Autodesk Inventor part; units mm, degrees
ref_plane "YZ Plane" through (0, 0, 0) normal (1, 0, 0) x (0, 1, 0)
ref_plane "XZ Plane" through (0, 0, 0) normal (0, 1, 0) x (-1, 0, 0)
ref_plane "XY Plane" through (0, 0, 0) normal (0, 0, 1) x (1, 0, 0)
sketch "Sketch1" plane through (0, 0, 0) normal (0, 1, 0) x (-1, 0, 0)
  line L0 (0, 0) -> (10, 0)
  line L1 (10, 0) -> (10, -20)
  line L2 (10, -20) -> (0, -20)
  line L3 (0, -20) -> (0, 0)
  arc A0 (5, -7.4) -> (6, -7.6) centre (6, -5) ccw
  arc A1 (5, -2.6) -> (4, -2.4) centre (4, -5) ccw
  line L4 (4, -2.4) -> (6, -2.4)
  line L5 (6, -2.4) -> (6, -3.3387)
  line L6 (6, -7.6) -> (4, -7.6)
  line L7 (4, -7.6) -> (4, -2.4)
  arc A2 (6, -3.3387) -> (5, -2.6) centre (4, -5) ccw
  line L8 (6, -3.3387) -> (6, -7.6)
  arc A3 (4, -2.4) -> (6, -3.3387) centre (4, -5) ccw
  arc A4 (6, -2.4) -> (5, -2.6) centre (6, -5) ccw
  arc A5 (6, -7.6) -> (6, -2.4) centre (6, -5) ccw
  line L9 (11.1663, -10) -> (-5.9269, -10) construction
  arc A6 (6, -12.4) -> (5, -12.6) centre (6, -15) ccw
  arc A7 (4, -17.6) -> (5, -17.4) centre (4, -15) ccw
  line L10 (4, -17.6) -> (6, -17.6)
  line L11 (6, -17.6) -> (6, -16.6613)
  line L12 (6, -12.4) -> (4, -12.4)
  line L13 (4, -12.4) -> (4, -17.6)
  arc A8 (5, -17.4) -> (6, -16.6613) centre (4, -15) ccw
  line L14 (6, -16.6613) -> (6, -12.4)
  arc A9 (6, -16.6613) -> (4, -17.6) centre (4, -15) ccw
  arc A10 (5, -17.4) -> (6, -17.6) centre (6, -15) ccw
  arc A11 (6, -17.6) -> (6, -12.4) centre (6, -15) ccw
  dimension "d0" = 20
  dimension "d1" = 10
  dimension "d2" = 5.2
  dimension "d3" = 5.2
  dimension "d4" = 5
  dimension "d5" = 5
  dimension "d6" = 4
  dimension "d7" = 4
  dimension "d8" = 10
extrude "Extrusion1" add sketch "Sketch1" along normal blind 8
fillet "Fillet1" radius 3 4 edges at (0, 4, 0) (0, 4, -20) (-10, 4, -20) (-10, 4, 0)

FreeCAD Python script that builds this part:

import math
import FreeCAD as App
import Part
import Sketcher

V = App.Vector


def edges_at(feature, points):
    """Names of the edges that pass closest to the given points."""
    edges = feature.Shape.Edges
    near = lambda p: min(range(len(edges)), key=lambda i: edges[i].distToShape(Part.Vertex(*p))[0])
    return sorted({f"Edge{near(p) + 1}" for p in points})

doc = App.newDocument("Part")
body = doc.addObject("PartDesign::Body", "Body")

# Sketch on XZ plane
sketch1 = body.newObject("Sketcher::SketchObject", "Sketch")
sketch1.AttachmentSupport = (doc.getObject("XZ_Plane"), [""])
sketch1.MapMode = "FlatFace"
sketch1.addGeometry([
    Part.LineSegment(V(-10, 0, 0), V(0, 0, 0)),  # 0
    Part.LineSegment(V(0, 0, 0), V(0, -20, 0)),  # 1
    Part.LineSegment(V(0, -20, 0), V(-10, -20, 0)),  # 2
    Part.LineSegment(V(-10, -20, 0), V(-10, 0, 0)),  # 3
    Part.LineSegment(V(-4, -12.4, 0), V(-6, -12.4, 0)),  # 4
    Part.ArcOfCircle(Part.Circle(V(-6, -15, 0), V(0, 0, 1), 2.6), math.radians(90), math.radians(270)),  # 5
    Part.LineSegment(V(-6, -17.6, 0), V(-4, -17.6, 0)),  # 6
    Part.ArcOfCircle(Part.Circle(V(-4, -15, 0), V(0, 0, 1), 2.6), math.radians(-90), math.radians(90)),  # 7
    Part.ArcOfCircle(Part.Circle(V(-6, -5, 0), V(0, 0, 1), 2.6), math.radians(90), math.radians(270)),  # 8
    Part.LineSegment(V(-6, -7.6, 0), V(-4, -7.6, 0)),  # 9
    Part.ArcOfCircle(Part.Circle(V(-4, -5, 0), V(0, 0, 1), 2.6), math.radians(-90), math.radians(90)),  # 10
    Part.LineSegment(V(-4, -2.4, 0), V(-6, -2.4, 0)),  # 11
], False)
sketch1.addConstraint([
    Sketcher.Constraint("Coincident", 0, 2, 1, 1),
    Sketcher.Constraint("Coincident", 1, 2, 2, 1),
    Sketcher.Constraint("Coincident", 2, 2, 3, 1),
    Sketcher.Constraint("Coincident", 3, 2, 0, 1),
    Sketcher.Constraint("Tangent", 4, 2, 5, 1),
    Sketcher.Constraint("Tangent", 5, 2, 6, 1),
    Sketcher.Constraint("Tangent", 6, 2, 7, 1),
    Sketcher.Constraint("Tangent", 7, 2, 4, 1),
    Sketcher.Constraint("Tangent", 8, 2, 9, 1),
    Sketcher.Constraint("Tangent", 9, 2, 10, 1),
    Sketcher.Constraint("Tangent", 10, 2, 11, 1),
    Sketcher.Constraint("Tangent", 11, 2, 8, 1),
    Sketcher.Constraint("Horizontal", 0),
    Sketcher.Constraint("Vertical", 1),
    Sketcher.Constraint("Horizontal", 2),
    Sketcher.Constraint("Vertical", 3),
    Sketcher.Constraint("Horizontal", 4),
    Sketcher.Constraint("Horizontal", 6),
    Sketcher.Constraint("Horizontal", 9),
    Sketcher.Constraint("Horizontal", 11),
    Sketcher.Constraint("Coincident", 0, 2, -1, 1),
    Sketcher.Constraint("Equal", 7, 8),
    Sketcher.Constraint("Vertical", 5, 3, 8, 3),
    Sketcher.Constraint("Vertical", 7, 3, 10, 3),
    Sketcher.Constraint("Radius", 5, 2.6),
    Sketcher.Constraint("DistanceX", 0, 1, 0, 2, 10.0),
    Sketcher.Constraint("DistanceY", 1, 2, 1, 1, 20.0),
    Sketcher.Constraint("DistanceX", 7, 3, -1, 1, 4.0),
    Sketcher.Constraint("DistanceY", 8, 3, -1, 1, 5.0),
    Sketcher.Constraint("DistanceY", 5, 3, 8, 3, 10.0),
    Sketcher.Constraint("DistanceX", 2, 2, 5, 3, 4.0),
])
pad1 = body.newObject("PartDesign::Pad", "Pad")
pad1.Profile = sketch1
pad1.Length = 8
pad1.Reversed = True
doc.recompute()

fillet = body.newObject("PartDesign::Fillet", "Fillet")
fillet.Base = (pad1, edges_at(pad1, [
    (0, 4, 0),
    (0, 4, -20),
    (-10, 4, -20),
    (-10, 4, 0),
]))
fillet.Radius = 3

doc.recompute()
